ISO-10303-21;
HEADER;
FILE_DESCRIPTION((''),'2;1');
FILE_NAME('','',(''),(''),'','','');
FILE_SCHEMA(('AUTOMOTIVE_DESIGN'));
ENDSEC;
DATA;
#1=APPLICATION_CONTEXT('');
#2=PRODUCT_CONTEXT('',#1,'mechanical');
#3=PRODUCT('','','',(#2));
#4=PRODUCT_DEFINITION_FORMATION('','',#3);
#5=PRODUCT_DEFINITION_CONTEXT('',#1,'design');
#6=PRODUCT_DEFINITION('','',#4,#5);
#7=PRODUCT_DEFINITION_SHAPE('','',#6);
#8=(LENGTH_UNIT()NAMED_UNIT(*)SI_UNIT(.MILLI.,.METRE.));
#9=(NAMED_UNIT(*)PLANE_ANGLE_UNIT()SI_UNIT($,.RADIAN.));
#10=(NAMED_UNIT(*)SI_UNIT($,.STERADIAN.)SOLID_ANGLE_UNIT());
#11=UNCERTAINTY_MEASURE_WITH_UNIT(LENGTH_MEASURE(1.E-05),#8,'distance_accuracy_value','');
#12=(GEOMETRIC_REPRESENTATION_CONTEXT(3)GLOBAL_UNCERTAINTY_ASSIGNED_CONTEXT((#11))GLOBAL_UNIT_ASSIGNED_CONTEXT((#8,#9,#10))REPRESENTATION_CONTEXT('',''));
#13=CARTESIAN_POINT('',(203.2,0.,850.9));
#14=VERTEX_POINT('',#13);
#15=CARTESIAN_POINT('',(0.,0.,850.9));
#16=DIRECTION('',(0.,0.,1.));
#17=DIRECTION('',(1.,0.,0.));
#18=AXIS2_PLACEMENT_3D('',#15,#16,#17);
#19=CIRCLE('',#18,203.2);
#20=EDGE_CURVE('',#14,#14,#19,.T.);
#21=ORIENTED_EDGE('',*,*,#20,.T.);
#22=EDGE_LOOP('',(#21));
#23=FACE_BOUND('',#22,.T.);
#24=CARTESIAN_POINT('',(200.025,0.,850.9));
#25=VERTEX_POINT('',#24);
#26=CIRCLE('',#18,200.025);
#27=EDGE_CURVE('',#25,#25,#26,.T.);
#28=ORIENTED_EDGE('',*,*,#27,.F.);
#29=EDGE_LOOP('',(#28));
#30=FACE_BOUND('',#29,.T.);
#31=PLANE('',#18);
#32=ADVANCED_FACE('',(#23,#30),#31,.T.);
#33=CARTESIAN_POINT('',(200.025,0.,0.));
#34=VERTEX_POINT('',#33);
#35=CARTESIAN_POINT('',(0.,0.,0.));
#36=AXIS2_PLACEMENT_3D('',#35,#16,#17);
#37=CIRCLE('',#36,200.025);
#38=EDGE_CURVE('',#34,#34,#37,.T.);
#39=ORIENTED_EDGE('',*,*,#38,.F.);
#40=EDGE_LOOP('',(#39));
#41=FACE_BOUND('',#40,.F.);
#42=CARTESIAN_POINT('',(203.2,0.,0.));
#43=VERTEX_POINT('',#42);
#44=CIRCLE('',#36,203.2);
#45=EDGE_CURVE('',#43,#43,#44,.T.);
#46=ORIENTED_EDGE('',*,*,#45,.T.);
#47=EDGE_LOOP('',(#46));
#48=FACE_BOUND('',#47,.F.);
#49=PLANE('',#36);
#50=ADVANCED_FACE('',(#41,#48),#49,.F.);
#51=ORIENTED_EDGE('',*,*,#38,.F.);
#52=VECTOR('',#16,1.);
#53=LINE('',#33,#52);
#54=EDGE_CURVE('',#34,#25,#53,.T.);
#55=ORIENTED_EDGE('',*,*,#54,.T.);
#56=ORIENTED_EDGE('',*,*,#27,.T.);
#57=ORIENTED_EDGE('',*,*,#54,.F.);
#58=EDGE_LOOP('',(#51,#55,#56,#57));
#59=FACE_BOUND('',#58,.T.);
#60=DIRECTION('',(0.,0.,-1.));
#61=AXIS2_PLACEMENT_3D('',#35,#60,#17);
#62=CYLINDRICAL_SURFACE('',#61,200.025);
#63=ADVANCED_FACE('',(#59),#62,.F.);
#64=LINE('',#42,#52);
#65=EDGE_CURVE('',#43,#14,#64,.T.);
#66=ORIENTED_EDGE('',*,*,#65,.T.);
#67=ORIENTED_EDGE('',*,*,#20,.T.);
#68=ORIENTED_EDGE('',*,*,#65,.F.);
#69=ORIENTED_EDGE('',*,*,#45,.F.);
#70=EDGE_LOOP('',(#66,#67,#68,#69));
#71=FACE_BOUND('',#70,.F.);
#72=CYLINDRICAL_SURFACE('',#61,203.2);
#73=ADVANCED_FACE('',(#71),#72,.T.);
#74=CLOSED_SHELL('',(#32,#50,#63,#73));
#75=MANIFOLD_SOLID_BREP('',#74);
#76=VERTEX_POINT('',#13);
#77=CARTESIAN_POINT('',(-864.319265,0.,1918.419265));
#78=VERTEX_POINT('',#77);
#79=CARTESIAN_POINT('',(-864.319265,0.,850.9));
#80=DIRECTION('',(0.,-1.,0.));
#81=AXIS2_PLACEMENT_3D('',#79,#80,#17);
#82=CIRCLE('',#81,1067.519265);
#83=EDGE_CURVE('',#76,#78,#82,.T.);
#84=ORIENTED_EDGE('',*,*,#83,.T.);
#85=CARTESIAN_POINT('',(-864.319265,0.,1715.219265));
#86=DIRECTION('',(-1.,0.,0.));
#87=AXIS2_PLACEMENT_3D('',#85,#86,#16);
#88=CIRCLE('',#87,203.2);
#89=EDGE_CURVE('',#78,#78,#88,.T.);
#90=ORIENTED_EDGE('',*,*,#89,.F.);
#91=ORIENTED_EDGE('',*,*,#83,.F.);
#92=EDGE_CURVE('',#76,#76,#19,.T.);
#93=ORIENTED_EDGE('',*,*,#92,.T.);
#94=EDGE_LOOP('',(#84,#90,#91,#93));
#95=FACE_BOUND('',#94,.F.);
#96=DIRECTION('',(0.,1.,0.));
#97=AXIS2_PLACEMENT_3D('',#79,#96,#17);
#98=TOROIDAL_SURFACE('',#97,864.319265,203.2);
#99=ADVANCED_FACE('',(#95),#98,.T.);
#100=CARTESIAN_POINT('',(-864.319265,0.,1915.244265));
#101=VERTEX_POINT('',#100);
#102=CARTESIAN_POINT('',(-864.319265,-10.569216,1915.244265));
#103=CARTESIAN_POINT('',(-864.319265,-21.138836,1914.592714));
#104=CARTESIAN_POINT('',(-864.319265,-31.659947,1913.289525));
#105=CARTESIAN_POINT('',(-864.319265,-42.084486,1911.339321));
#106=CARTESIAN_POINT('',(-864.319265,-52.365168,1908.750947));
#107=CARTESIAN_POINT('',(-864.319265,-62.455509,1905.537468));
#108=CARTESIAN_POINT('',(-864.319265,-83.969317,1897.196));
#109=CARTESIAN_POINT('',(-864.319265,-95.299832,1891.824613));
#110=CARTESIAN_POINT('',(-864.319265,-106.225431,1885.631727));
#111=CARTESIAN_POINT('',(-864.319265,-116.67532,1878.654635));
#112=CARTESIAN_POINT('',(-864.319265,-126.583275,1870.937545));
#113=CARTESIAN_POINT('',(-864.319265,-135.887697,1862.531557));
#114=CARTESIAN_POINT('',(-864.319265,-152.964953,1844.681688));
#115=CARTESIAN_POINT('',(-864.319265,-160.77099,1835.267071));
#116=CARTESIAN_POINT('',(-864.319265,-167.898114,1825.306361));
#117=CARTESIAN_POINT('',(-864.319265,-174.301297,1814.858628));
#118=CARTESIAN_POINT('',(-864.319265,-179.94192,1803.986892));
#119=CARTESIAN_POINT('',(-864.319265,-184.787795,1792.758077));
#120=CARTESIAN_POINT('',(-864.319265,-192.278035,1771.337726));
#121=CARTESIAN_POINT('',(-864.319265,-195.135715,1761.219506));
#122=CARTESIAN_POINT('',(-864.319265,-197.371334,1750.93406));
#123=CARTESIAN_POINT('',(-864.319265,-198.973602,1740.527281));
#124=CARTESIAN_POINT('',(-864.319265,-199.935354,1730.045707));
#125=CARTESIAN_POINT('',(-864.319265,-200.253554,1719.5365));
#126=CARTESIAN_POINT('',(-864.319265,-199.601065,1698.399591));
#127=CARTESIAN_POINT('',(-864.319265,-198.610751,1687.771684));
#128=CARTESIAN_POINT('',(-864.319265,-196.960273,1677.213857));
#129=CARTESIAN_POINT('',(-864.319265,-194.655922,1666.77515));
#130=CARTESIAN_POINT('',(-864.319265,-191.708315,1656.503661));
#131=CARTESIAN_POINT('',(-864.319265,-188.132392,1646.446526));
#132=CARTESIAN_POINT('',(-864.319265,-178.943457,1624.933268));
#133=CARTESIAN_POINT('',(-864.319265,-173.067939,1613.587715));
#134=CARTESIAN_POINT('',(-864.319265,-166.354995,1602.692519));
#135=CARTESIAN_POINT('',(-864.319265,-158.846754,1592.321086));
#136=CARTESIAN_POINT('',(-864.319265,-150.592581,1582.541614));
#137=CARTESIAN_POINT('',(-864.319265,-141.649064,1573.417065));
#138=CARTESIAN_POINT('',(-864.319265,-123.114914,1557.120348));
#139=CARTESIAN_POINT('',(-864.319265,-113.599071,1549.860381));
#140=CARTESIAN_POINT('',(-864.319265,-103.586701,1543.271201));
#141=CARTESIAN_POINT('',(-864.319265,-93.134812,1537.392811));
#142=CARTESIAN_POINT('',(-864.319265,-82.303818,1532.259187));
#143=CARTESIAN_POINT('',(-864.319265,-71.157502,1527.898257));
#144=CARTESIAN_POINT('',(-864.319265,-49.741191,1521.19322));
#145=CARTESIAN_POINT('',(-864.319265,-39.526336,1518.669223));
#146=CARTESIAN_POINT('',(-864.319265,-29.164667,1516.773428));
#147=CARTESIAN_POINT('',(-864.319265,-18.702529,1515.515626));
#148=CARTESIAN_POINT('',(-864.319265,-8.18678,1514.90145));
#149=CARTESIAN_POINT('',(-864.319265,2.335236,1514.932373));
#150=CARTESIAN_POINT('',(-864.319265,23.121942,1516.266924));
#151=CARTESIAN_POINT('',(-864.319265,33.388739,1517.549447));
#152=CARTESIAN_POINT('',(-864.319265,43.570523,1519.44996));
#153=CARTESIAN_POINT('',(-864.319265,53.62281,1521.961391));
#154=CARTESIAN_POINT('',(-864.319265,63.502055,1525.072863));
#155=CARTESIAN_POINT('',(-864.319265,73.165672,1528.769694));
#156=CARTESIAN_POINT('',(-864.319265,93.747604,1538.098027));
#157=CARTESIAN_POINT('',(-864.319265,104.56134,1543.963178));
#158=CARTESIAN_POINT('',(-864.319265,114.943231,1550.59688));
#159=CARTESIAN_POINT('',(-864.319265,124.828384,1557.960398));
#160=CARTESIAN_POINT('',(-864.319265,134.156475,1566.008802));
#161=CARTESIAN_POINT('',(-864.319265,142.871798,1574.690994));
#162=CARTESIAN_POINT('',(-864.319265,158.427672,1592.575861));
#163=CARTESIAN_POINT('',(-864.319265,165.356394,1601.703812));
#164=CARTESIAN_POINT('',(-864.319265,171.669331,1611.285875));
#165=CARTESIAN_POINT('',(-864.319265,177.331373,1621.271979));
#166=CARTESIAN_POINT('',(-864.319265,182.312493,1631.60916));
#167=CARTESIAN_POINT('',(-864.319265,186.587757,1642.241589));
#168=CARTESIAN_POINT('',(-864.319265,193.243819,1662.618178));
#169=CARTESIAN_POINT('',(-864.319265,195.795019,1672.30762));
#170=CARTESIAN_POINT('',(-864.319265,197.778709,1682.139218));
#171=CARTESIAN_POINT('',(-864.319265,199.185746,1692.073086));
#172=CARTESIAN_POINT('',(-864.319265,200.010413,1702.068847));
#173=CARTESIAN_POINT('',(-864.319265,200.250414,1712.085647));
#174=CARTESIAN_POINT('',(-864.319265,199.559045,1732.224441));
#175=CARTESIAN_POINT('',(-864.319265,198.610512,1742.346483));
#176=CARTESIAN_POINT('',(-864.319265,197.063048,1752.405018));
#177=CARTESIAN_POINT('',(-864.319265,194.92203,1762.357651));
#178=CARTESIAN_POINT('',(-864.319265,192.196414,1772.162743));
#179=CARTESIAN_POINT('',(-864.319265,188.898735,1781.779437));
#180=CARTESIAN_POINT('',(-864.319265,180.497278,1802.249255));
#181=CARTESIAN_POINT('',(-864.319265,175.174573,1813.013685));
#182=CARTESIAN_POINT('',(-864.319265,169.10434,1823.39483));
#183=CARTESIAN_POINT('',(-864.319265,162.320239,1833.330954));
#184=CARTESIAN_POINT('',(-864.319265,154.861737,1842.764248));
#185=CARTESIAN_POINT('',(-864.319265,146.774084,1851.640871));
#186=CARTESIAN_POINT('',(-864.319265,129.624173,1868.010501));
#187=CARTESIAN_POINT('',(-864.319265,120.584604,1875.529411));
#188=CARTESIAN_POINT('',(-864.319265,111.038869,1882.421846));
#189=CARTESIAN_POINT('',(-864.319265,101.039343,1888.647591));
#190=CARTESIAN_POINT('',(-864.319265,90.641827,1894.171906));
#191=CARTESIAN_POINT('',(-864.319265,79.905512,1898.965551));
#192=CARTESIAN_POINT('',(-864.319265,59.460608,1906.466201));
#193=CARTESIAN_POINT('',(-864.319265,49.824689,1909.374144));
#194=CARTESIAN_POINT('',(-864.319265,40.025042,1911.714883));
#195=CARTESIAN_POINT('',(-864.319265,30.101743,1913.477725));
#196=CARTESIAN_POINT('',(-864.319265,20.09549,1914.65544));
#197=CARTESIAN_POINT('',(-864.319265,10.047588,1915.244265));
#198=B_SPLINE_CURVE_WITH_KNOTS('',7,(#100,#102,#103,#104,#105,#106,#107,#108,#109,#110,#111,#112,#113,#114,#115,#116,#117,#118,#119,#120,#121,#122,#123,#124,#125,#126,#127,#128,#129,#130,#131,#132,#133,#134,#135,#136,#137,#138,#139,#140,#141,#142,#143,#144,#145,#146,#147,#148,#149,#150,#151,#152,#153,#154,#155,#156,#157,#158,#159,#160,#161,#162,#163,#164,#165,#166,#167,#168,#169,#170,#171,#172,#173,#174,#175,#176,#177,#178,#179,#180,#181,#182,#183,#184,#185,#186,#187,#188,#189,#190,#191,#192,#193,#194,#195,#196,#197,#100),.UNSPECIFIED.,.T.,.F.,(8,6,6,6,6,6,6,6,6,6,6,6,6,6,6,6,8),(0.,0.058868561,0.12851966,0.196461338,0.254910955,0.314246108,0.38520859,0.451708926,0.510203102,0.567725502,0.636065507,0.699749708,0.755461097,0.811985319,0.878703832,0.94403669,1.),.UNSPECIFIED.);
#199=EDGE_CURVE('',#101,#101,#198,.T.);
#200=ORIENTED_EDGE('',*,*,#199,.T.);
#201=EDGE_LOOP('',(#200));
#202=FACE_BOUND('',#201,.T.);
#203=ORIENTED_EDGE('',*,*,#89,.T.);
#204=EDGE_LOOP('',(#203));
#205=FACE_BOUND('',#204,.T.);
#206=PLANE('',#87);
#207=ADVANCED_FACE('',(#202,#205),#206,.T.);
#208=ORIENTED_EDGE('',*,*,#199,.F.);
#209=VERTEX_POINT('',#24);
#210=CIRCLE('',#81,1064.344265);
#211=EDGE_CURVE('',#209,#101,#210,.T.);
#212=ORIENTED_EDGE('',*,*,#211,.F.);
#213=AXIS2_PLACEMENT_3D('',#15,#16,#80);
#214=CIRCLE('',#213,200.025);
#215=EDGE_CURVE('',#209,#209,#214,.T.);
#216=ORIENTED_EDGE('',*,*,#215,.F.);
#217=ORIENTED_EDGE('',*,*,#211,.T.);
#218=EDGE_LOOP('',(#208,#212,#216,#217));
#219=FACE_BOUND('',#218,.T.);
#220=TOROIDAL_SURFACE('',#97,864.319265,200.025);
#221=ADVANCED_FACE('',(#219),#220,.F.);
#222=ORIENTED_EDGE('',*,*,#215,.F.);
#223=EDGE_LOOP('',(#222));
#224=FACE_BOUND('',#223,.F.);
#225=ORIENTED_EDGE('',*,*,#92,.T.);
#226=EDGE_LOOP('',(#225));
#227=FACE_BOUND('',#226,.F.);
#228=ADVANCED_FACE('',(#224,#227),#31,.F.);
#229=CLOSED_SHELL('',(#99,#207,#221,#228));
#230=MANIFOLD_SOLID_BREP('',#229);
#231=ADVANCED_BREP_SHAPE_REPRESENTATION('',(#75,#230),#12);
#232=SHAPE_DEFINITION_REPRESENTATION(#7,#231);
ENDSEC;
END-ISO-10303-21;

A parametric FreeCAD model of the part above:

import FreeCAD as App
import Part
import Sketcher
Q = App.Units.Quantity


def faces_at(feature, points):
    """Names of the faces that lie closest to the given points."""
    faces = feature.Shape.Faces
    near = lambda p: min(range(len(faces)), key=lambda i: faces[i].distToShape(Part.Vertex(*p))[0])
    return sorted({f"Face{near(p) + 1}" for p in points})

doc = App.newDocument("Part")
body = doc.addObject("PartDesign::Body", "Body")

# Sketch on XY plane
sketch1 = body.newObject("Sketcher::SketchObject", "Sketch")
sketch1.AttachmentSupport = (doc.getObject("XY_Plane"), [""])
sketch1.MapMode = "FlatFace"
sketch1.AttachmentOffset = App.Placement(App.Vector(0, 0, 33.5 * 25.4), App.Rotation())
sketch1.addGeometry(Part.Circle(App.Vector(0, 0, 0), App.Vector(0, 0, 1), 203), False)
sketch1.addGeometry(Part.LineSegment(App.Vector(-864, 0, 0), App.Vector(-864, -10, 0)), True)  # axis
sketch1.addConstraint(Sketcher.Constraint("Vertical", 1))
sketch1.addConstraint(Sketcher.Constraint("Coincident", 0, 3, -1, 1))
sketch1.addConstraint(Sketcher.Constraint("PointOnObject", 1, 1, -1))
sketch1.addConstraint(Sketcher.Constraint("Diameter", 0, Q("16 in")))
sketch1.addConstraint(Sketcher.Constraint("DistanceY", 1, 2, 1, 1, Q("10 mm")))
sketch1.addConstraint(Sketcher.Constraint("DistanceX", 1, 1, -1, 1, Q("864.319265 mm")))
revolution = body.newObject("PartDesign::Revolution", "Revolution")
revolution.Profile = sketch1
revolution.ReferenceAxis = (sketch1, ["Axis0"])
revolution.Angle = 90
doc.recompute()

thickness = body.newObject("PartDesign::Thickness", "Thickness")
thickness.Base = (revolution, faces_at(revolution, [(-864.319, 0, 1715.219), (0, 0, 850.9)]))
thickness.Value = Q("0.125 in")
thickness.Reversed = True
thickness.Join = "Intersection"
body2 = doc.addObject("PartDesign::Body", "Body001")

# Sketch on XY plane
sketch2 = body2.newObject("Sketcher::SketchObject", "Sketch001")
sketch2.AttachmentSupport = (doc.getObject("XY_Plane001"), [""])
sketch2.MapMode = "FlatFace"
sketch2.addGeometry(Part.Circle(App.Vector(0, 0, 0), App.Vector(0, 0, 1), 203), False)
sketch2.addGeometry(Part.Circle(App.Vector(0, 0, 0), App.Vector(0, 0, 1), 200), False)
sketch2.addConstraint(Sketcher.Constraint("Coincident", 0, 3, -1, 1))
sketch2.addConstraint(Sketcher.Constraint("Coincident", 1, 3, -1, 1))
sketch2.addConstraint(Sketcher.Constraint("Diameter", 0, Q("16 in")))
sketch2.addConstraint(Sketcher.Constraint("Diameter", 1, Q("15.75 in")))
pad1 = body2.newObject("PartDesign::Pad", "Pad")
pad1.Profile = sketch2
pad1.Length = Q("33.5 in")

doc.recompute()
